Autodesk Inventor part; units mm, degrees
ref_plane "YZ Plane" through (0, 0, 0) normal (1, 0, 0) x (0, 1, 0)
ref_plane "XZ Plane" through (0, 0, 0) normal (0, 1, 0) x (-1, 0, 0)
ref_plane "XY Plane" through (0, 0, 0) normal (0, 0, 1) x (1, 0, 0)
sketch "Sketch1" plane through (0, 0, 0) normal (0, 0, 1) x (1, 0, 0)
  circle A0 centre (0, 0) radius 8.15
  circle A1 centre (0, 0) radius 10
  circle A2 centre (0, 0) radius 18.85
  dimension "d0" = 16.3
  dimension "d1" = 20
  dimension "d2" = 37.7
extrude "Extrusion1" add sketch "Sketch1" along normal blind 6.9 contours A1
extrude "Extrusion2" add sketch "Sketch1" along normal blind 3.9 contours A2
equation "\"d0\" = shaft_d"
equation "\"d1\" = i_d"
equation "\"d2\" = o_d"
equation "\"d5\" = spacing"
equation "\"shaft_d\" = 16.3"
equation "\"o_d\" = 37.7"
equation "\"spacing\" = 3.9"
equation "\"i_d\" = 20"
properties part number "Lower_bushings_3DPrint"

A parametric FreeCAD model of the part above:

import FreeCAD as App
import Part
import Sketcher
Q = App.Units.Quantity

doc = App.newDocument("Part")
params = doc.addObject("Spreadsheet::Sheet", "Params")
for row, (alias, value) in enumerate([
    ("sketch1_diameter", "20 mm"),
    ("sketch1_diameter2", "16.3 mm"),
    ("pad1_length", "6.9 mm"),
    ("sketch2_diameter", "20 mm"),
    ("sketch2_diameter2", "37.7 mm"),
    ("pad2_length", "3.9 mm"),
], start=1):
    params.set(f"A{row}", alias)
    params.set(f"B{row}", "=" + value)
    params.setAlias(f"B{row}", alias)

body = doc.addObject("PartDesign::Body", "Body")

# Sketch on XY plane
sketch1 = body.newObject("Sketcher::SketchObject", "Sketch")
sketch1.AttachmentSupport = (doc.getObject("XY_Plane"), [""])
sketch1.MapMode = "FlatFace"
sketch1.addGeometry(Part.Circle(App.Vector(0, 0, 0), App.Vector(0, 0, 1), 10), False)
sketch1.addGeometry(Part.Circle(App.Vector(0, 0, 0), App.Vector(0, 0, 1), 8.15), False)
sketch1.addConstraint(Sketcher.Constraint("Coincident", 0, 3, -1, 1))
sketch1.addConstraint(Sketcher.Constraint("Coincident", 1, 3, -1, 1))
sketch1.addConstraint(Sketcher.Constraint("Diameter", 0, Q("20 mm")))
sketch1.addConstraint(Sketcher.Constraint("Diameter", 1, Q("16.3 mm")))
sketch1.setExpression("Constraints[2]", "Params.sketch1_diameter")
sketch1.setExpression("Constraints[3]", "Params.sketch1_diameter2")
pad1 = body.newObject("PartDesign::Pad", "Pad")
pad1.Profile = sketch1
pad1.setExpression("Length", "Params.pad1_length")

# Sketch on XY plane
sketch2 = body.newObject("Sketcher::SketchObject", "Sketch001")
sketch2.AttachmentSupport = (doc.getObject("XY_Plane"), [""])
sketch2.MapMode = "FlatFace"
sketch2.addGeometry(Part.Circle(App.Vector(0, 0, 0), App.Vector(0, 0, 1), 18.85), False)
sketch2.addGeometry(Part.Circle(App.Vector(0, 0, 0), App.Vector(0, 0, 1), 10), False)
sketch2.addConstraint(Sketcher.Constraint("Coincident", 0, 3, -1, 1))
sketch2.addConstraint(Sketcher.Constraint("Coincident", 1, 3, -1, 1))
sketch2.addConstraint(Sketcher.Constraint("Diameter", 1, Q("20 mm")))
sketch2.addConstraint(Sketcher.Constraint("Diameter", 0, Q("37.7 mm")))
sketch2.setExpression("Constraints[2]", "Params.sketch2_diameter")
sketch2.setExpression("Constraints[3]", "Params.sketch2_diameter2")
pad2 = body.newObject("PartDesign::Pad", "Pad001")
pad2.Profile = sketch2
pad2.setExpression("Length", "Params.pad2_length")

doc.recompute()
